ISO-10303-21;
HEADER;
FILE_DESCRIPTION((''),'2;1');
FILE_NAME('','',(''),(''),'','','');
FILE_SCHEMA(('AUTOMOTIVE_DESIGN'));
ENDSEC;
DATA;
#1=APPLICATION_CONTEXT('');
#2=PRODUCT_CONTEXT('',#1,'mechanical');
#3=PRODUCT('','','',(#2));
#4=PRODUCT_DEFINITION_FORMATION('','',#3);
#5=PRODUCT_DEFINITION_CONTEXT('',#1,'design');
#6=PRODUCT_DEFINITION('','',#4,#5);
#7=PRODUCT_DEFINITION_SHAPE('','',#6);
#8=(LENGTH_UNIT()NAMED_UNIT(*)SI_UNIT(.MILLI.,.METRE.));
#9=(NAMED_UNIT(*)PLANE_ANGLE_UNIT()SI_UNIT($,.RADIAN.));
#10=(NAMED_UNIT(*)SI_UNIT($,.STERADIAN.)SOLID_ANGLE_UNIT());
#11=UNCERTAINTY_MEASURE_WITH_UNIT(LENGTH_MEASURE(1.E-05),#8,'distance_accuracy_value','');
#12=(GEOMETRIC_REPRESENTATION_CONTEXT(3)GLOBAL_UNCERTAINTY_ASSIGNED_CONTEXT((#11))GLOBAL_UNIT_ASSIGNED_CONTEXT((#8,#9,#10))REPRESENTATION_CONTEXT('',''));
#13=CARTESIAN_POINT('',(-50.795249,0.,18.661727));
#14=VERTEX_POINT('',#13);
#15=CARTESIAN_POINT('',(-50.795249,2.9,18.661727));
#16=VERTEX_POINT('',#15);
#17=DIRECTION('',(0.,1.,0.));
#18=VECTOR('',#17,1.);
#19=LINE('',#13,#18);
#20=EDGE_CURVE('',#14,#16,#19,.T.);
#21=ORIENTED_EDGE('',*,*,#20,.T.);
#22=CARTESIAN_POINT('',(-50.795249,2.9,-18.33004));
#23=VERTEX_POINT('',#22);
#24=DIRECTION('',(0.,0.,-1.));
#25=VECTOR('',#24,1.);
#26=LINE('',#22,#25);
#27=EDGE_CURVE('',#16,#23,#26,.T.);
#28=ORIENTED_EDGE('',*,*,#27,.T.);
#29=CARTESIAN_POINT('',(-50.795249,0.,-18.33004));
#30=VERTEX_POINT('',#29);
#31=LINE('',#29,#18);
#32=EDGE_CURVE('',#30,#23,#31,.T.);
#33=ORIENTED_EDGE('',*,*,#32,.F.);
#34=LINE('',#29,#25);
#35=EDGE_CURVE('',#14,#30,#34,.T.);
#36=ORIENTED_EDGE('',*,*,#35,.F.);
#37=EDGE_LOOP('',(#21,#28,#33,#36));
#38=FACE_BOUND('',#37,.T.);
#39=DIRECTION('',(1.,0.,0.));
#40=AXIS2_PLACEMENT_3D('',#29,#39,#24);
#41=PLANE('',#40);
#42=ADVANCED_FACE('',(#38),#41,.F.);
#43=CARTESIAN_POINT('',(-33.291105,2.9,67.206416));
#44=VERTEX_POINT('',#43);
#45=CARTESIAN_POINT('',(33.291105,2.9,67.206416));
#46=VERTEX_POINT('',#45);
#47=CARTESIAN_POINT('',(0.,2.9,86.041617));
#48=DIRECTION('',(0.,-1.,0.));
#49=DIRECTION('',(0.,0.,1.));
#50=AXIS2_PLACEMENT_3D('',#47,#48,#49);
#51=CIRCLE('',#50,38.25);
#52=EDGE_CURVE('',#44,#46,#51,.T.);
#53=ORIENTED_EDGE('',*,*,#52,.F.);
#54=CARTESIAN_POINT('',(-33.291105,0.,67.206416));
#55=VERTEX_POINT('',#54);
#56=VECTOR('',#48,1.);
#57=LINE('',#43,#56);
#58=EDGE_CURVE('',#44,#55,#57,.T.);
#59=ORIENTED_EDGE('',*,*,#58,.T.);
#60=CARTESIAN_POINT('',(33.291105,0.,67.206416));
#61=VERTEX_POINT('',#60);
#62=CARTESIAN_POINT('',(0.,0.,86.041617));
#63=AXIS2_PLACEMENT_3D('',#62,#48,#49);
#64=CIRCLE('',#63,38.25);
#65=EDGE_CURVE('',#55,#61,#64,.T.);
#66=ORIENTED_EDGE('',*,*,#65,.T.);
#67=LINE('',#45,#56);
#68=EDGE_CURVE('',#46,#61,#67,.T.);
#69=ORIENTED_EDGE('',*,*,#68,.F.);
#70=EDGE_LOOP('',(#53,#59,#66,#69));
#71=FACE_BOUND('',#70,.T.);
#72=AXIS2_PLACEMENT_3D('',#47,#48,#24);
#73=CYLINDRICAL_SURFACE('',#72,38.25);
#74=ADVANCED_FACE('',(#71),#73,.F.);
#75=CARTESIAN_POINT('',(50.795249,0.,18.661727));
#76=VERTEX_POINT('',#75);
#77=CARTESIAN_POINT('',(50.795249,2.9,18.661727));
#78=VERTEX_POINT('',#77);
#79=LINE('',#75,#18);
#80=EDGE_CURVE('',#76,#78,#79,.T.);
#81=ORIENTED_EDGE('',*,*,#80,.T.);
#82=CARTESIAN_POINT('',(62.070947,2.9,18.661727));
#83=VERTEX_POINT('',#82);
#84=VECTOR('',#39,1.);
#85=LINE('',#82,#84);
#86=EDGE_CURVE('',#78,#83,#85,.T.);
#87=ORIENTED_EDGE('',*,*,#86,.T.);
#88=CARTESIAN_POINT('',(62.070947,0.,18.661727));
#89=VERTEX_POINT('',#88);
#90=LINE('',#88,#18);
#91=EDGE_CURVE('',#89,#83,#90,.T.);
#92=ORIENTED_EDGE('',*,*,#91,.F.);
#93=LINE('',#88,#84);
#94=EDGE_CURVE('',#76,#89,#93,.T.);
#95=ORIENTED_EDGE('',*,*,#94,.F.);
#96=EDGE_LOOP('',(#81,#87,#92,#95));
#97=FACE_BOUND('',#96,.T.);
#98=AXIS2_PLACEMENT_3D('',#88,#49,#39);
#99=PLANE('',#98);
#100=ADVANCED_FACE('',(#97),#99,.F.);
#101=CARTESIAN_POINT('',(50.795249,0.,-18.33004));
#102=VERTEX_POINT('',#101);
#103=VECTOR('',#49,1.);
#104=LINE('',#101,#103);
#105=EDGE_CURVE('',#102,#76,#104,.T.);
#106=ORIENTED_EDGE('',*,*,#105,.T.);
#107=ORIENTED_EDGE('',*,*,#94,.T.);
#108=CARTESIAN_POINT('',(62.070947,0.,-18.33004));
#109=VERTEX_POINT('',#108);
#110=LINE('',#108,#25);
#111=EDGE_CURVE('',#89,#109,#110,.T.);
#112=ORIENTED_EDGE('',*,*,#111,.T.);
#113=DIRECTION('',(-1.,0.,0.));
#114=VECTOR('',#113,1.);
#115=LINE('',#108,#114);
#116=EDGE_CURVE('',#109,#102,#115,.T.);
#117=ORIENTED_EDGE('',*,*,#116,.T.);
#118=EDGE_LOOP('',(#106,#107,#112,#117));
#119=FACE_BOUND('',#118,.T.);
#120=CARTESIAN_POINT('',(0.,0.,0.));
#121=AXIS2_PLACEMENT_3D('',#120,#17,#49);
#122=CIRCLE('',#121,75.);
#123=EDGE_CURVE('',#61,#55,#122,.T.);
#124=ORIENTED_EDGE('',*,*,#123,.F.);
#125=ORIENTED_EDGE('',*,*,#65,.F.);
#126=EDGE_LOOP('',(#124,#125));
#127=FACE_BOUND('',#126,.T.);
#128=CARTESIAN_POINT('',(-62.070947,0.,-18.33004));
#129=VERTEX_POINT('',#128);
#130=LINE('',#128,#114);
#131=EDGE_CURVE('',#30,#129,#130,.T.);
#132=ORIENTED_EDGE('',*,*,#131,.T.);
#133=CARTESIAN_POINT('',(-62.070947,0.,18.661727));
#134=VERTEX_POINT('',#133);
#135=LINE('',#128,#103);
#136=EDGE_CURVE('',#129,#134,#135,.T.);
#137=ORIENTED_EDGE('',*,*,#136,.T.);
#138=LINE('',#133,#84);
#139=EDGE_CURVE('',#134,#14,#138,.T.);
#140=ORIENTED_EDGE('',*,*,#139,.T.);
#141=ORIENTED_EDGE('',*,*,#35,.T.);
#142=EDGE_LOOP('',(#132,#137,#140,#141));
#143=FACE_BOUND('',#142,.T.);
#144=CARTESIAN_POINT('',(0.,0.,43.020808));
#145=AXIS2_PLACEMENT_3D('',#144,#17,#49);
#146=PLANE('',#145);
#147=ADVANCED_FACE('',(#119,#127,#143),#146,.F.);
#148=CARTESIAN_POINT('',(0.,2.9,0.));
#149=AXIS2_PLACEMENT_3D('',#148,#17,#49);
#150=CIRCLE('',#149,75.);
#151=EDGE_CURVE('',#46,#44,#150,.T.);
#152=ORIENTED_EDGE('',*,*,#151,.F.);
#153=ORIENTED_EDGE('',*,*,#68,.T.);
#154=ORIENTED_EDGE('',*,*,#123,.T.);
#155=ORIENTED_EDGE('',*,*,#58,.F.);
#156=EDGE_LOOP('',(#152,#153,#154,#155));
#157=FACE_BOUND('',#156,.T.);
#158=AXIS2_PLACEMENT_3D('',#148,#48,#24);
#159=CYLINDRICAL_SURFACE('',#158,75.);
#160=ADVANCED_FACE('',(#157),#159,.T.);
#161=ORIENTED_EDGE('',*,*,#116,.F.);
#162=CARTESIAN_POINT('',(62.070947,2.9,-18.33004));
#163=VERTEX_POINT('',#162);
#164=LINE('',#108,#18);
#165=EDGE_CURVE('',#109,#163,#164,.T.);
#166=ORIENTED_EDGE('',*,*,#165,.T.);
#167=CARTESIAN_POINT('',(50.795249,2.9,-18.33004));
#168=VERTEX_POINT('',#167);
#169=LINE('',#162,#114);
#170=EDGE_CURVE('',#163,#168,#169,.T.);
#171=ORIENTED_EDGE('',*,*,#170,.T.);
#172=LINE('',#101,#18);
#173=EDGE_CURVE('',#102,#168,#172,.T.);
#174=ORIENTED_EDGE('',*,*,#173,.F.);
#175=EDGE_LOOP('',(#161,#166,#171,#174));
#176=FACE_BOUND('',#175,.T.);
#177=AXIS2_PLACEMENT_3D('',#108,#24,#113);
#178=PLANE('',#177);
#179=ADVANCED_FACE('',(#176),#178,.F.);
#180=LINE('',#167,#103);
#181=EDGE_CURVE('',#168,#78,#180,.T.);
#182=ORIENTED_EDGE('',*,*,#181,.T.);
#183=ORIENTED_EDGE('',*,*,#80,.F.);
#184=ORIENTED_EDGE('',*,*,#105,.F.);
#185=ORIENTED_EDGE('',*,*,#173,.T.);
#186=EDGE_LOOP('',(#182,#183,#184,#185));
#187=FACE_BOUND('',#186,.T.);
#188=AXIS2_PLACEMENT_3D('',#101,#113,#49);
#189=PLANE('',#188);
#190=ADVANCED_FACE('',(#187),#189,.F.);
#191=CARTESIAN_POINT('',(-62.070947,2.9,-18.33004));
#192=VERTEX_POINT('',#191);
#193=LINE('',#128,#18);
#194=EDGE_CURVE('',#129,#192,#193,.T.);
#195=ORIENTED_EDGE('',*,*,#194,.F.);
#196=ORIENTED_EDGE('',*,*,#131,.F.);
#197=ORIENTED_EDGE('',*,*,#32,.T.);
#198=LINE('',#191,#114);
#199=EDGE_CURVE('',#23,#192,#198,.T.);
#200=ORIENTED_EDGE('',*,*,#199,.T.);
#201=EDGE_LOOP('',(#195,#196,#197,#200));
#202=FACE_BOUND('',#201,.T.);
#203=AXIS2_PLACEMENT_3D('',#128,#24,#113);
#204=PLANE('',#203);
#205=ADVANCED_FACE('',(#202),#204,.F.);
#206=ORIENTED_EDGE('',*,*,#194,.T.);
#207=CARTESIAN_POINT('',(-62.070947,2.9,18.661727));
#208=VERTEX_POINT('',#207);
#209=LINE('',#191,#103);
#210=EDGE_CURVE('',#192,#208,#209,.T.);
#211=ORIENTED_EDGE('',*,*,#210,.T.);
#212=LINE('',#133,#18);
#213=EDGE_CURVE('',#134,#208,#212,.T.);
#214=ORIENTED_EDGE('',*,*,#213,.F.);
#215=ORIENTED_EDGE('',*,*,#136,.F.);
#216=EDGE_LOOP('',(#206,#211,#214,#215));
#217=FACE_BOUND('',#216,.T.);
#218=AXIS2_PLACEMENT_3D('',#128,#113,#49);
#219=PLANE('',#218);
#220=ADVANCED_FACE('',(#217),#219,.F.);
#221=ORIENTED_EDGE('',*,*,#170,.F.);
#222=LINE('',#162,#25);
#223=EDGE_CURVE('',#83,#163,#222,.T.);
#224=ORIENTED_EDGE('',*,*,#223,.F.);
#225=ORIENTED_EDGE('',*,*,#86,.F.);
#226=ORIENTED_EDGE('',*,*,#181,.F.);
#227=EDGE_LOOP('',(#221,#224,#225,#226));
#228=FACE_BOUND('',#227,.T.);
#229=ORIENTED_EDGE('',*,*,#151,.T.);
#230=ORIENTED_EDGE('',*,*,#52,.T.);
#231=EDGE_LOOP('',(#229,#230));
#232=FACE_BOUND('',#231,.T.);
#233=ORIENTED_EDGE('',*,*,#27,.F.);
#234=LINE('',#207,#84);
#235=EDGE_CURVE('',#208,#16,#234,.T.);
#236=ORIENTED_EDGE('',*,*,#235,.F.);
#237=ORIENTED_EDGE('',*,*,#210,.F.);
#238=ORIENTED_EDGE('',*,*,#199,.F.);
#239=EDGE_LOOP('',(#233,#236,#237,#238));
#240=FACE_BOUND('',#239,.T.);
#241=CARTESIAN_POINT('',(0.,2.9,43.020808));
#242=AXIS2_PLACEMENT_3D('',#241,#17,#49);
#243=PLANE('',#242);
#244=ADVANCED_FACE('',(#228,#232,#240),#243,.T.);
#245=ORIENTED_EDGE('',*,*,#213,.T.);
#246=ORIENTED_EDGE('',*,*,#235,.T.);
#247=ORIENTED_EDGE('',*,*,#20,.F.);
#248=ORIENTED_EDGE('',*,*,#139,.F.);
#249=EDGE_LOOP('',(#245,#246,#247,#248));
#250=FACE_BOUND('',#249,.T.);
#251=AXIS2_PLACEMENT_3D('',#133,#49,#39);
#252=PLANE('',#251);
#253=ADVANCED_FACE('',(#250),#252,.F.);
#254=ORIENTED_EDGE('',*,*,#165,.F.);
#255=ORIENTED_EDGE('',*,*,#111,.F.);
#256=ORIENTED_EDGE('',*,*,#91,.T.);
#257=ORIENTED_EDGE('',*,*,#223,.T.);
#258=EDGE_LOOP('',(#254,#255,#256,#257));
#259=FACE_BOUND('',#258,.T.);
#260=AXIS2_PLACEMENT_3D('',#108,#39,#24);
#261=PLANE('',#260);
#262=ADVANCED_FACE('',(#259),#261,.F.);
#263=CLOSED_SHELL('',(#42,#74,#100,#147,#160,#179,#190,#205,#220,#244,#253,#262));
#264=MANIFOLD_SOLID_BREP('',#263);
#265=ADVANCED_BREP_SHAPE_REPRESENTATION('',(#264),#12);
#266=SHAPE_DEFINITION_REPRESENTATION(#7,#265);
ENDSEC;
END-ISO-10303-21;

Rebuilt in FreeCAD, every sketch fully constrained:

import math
import FreeCAD as App
import Part
import Sketcher

doc = App.newDocument("Part")
body = doc.addObject("PartDesign::Body", "Body")

# Sketch on XZ plane
sketch1 = body.newObject("Sketcher::SketchObject", "Sketch")
sketch1.AttachmentSupport = (doc.getObject("XZ_Plane"), [""])
sketch1.MapMode = "FlatFace"
sketch1.addGeometry(Part.ArcOfCircle(Part.Circle(App.Vector(0, 0, 0), App.Vector(0, 0, 1), 75), math.radians(116), math.radians(424)), False)
sketch1.addGeometry(Part.ArcOfCircle(Part.Circle(App.Vector(0, 86, 0), App.Vector(0, 0, 1), 38), math.radians(-150), math.radians(-30)), False)
sketch1.addConstraint(Sketcher.Constraint("Coincident", 0, 1, 1, 1))
sketch1.addConstraint(Sketcher.Constraint("Coincident", 1, 2, 0, 2))
sketch1.addConstraint(Sketcher.Constraint("Coincident", 0, 3, -1, 1))
sketch1.addConstraint(Sketcher.Constraint("PointOnObject", 1, 3, -2))
sketch1.addConstraint(Sketcher.Constraint("Radius", 0, 75.0))
sketch1.addConstraint(Sketcher.Constraint("Radius", 1, 38.25))
sketch1.addConstraint(Sketcher.Constraint("DistanceY", 0, 1, 1, 3, 18.835201))
pad1 = body.newObject("PartDesign::Pad", "Pad")
pad1.Profile = sketch1
pad1.Length = 2.9
pad1.Reversed = True

# Sketch on XZ plane
sketch2 = body.newObject("Sketcher::SketchObject", "Sketch001")
sketch2.AttachmentSupport = (doc.getObject("XZ_Plane"), [""])
sketch2.MapMode = "FlatFace"
sketch2.AttachmentOffset = App.Placement(App.Vector(0, 0, -2.9), App.Rotation())
sketch2.addGeometry(Part.LineSegment(App.Vector(-62, -18, 0), App.Vector(-62, 19, 0)), False)
sketch2.addGeometry(Part.LineSegment(App.Vector(-62, 19, 0), App.Vector(-51, 19, 0)), False)
sketch2.addGeometry(Part.LineSegment(App.Vector(-51, 19, 0), App.Vector(-51, -18, 0)), False)
sketch2.addGeometry(Part.LineSegment(App.Vector(-51, -18, 0), App.Vector(-62, -18, 0)), False)
sketch2.addGeometry(Part.LineSegment(App.Vector(51, -18, 0), App.Vector(51, 19, 0)), False)
sketch2.addGeometry(Part.LineSegment(App.Vector(51, 19, 0), App.Vector(62, 19, 0)), False)
sketch2.addGeometry(Part.LineSegment(App.Vector(62, 19, 0), App.Vector(62, -18, 0)), False)
sketch2.addGeometry(Part.LineSegment(App.Vector(62, -18, 0), App.Vector(51, -18, 0)), False)
sketch2.addConstraint(Sketcher.Constraint("Coincident", 0, 2, 1, 1))
sketch2.addConstraint(Sketcher.Constraint("Coincident", 1, 2, 2, 1))
sketch2.addConstraint(Sketcher.Constraint("Coincident", 2, 2, 3, 1))
sketch2.addConstraint(Sketcher.Constraint("Coincident", 3, 2, 0, 1))
sketch2.addConstraint(Sketcher.Constraint("Coincident", 4, 2, 5, 1))
sketch2.addConstraint(Sketcher.Constraint("Coincident", 5, 2, 6, 1))
sketch2.addConstraint(Sketcher.Constraint("Coincident", 6, 2, 7, 1))
sketch2.addConstraint(Sketcher.Constraint("Coincident", 7, 2, 4, 1))
sketch2.addConstraint(Sketcher.Constraint("Vertical", 0))
sketch2.addConstraint(Sketcher.Constraint("Horizontal", 1))
sketch2.addConstraint(Sketcher.Constraint("Vertical", 2))
sketch2.addConstraint(Sketcher.Constraint("Horizontal", 3))
sketch2.addConstraint(Sketcher.Constraint("Vertical", 4))
sketch2.addConstraint(Sketcher.Constraint("Horizontal", 5))
sketch2.addConstraint(Sketcher.Constraint("Vertical", 6))
sketch2.addConstraint(Sketcher.Constraint("Horizontal", 7))
sketch2.addConstraint(Sketcher.Constraint("Symmetric", 1, 2, 4, 2, -2))
sketch2.addConstraint(Sketcher.Constraint("Symmetric", 3, 2, 6, 2, -2))
sketch2.addConstraint(Sketcher.Constraint("DistanceX", 1, 1, 1, 2, 11.275698))
sketch2.addConstraint(Sketcher.Constraint("DistanceY", 0, 1, 0, 2, 36.991767))
sketch2.addConstraint(Sketcher.Constraint("DistanceX", 1, 2, -1, 1, 50.795249))
sketch2.addConstraint(Sketcher.Constraint("DistanceY", 2, 2, -1, 1, 18.33004))
pocket1 = body.newObject("PartDesign::Pocket", "Pocket")
pocket1.Profile = sketch2
pocket1.Type = "ThroughAll"
pocket1.Reversed = True

doc.recompute()
